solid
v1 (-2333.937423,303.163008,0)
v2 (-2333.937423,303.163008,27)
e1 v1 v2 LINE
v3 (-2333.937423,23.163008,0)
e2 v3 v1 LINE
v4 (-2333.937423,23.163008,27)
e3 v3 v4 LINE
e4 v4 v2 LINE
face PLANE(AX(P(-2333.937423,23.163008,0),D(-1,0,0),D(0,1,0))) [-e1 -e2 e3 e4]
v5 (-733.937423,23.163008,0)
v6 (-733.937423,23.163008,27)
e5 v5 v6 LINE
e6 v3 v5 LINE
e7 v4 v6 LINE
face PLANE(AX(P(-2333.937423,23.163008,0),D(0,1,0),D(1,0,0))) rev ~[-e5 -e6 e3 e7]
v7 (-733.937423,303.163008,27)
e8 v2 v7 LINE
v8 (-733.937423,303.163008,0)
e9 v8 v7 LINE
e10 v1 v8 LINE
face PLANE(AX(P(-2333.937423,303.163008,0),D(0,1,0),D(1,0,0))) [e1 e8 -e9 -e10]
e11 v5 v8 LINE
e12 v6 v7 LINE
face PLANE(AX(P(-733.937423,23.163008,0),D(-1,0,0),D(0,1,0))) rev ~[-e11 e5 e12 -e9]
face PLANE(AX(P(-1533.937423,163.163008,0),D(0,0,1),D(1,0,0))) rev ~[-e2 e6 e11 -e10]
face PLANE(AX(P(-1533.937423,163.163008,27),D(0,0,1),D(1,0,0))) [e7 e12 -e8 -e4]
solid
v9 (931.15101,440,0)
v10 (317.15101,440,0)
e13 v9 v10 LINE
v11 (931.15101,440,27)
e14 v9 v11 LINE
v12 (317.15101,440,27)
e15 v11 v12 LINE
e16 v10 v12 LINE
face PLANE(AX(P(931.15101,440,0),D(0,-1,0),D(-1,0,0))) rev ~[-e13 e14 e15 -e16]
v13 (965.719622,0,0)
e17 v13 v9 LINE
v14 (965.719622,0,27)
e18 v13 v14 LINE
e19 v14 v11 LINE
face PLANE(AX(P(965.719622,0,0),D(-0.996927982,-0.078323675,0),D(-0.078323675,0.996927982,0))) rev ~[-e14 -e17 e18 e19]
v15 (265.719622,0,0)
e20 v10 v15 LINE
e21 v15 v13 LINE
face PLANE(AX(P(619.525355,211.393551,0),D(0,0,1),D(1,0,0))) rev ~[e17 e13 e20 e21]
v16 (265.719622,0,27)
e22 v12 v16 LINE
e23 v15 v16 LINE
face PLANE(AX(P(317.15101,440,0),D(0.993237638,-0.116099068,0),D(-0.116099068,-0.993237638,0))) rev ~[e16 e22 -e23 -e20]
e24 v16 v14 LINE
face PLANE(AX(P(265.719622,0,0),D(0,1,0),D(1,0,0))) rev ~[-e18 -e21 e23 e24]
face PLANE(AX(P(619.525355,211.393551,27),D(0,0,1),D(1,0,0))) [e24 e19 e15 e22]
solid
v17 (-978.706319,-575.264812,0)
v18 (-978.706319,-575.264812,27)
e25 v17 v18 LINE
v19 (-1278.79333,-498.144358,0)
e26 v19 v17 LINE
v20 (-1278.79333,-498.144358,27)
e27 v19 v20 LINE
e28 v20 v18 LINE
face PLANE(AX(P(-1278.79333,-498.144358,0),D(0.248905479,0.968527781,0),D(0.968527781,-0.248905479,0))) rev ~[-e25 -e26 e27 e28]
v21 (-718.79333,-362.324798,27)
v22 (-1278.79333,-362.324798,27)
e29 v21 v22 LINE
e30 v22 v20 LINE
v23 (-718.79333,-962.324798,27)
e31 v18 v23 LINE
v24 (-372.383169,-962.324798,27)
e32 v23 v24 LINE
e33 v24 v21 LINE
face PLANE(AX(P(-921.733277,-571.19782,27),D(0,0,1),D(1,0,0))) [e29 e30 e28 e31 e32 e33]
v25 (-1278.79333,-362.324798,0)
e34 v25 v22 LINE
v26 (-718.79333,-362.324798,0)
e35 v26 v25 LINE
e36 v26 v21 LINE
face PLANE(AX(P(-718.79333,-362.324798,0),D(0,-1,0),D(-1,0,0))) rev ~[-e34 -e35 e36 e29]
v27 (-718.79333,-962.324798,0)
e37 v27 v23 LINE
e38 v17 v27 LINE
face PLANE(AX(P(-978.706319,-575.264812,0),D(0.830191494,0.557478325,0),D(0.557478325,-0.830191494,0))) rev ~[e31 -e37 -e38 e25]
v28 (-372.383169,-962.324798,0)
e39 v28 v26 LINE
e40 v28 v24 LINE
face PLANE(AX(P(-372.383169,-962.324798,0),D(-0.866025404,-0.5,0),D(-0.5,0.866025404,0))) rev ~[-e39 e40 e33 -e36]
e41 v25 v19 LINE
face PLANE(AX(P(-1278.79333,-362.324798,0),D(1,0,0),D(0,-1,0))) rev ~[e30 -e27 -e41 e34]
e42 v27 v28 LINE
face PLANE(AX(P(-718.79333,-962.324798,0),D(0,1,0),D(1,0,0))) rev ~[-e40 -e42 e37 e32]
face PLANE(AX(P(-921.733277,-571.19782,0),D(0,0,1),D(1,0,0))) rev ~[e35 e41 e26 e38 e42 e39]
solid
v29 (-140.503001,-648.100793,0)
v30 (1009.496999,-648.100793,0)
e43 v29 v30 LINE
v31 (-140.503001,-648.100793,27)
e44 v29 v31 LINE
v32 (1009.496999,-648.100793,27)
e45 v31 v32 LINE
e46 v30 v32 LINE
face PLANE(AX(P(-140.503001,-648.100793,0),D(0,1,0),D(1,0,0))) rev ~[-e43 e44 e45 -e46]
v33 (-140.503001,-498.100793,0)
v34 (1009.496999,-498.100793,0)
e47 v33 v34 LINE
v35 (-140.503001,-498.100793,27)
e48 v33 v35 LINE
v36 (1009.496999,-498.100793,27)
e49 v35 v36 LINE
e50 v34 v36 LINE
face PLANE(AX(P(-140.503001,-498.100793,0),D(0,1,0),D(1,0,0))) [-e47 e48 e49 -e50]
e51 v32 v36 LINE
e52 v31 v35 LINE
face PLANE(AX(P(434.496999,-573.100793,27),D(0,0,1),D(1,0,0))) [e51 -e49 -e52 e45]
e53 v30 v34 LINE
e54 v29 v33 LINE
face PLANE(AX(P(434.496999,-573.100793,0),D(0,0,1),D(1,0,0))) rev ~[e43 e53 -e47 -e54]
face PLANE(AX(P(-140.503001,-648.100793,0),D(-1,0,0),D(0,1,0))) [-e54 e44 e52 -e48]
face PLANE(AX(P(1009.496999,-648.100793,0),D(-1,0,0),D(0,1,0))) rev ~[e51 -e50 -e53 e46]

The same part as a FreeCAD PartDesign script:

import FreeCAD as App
import Part
import Sketcher
Q = App.Units.Quantity


def add_polygon(sketch, points):
    """Adds a closed chain of lines whose ends are joined by coincident constraints."""
    first, n = sketch.GeometryCount, len(points)
    for a, b in zip(points, points[1:] + points[:1]):
        sketch.addGeometry(Part.LineSegment(App.Vector(*a, 0), App.Vector(*b, 0)), False)
    for i in range(n):
        sketch.addConstraint(Sketcher.Constraint("Coincident", first + i, 2, first + (i + 1) % n, 1))

doc = App.newDocument("Part")
body = doc.addObject("PartDesign::Body", "Body")

# Sketch on XY plane
sketch1 = doc.addObject("Sketcher::SketchObject", "Sketch")
body.addObject(sketch1)
sketch1.AttachmentSupport = (doc.XY_Plane, [""])
sketch1.MapMode = "FlatFace"
add_polygon(sketch1, [(-2334, 303), (-2334, 23), (-734, 23), (-734, 303)])  # lines 0-3
sketch1.addConstraint(Sketcher.Constraint("Vertical", 0))
sketch1.addConstraint(Sketcher.Constraint("Horizontal", 1))
sketch1.addConstraint(Sketcher.Constraint("Vertical", 2))
sketch1.addConstraint(Sketcher.Constraint("Horizontal", 3))
sketch1.addConstraint(Sketcher.Constraint("DistanceX", 1, 1, 1, 2, 1600.0))
sketch1.addConstraint(Sketcher.Constraint("DistanceY", 0, 2, 0, 1, 280.0))
sketch1.addConstraint(Sketcher.Constraint("DistanceX", 0, 2, -1, 1, 2333.937423))
sketch1.addConstraint(Sketcher.Constraint("DistanceY", -1, 1, 0, 2, 23.163008))
pad1 = doc.addObject("PartDesign::Pad", "Pad")
body.addObject(pad1)
pad1.Profile = sketch1
pad1.Length = 27
body2 = doc.addObject("PartDesign::Body", "Body001")

# Sketch on XY plane
sketch2 = doc.addObject("Sketcher::SketchObject", "Sketch001")
body2.addObject(sketch2)
sketch2.AttachmentSupport = (doc.getObject("XY_Plane001"), [""])
sketch2.MapMode = "FlatFace"
add_polygon(sketch2, [(-141, -498), (-141, -648), (1009, -648), (1009, -498)])  # lines 0-3
sketch2.addConstraint(Sketcher.Constraint("Vertical", 0))
sketch2.addConstraint(Sketcher.Constraint("Horizontal", 1))
sketch2.addConstraint(Sketcher.Constraint("Vertical", 2))
sketch2.addConstraint(Sketcher.Constraint("Horizontal", 3))
sketch2.addConstraint(Sketcher.Constraint("DistanceX", 1, 1, 1, 2, 1150.0))
sketch2.addConstraint(Sketcher.Constraint("DistanceY", 0, 2, 0, 1, 150.0))
sketch2.addConstraint(Sketcher.Constraint("DistanceX", 0, 2, -1, 1, 140.503001))
sketch2.addConstraint(Sketcher.Constraint("DistanceY", 0, 2, -1, 1, 648.100793))
pad2 = doc.addObject("PartDesign::Pad", "Pad001")
body2.addObject(pad2)
pad2.Profile = sketch2
pad2.Length = 27
body3 = doc.addObject("PartDesign::Body", "Body002")

# Sketch on XY plane
sketch3 = doc.addObject("Sketcher::SketchObject", "Sketch002")
body3.addObject(sketch3)
sketch3.AttachmentSupport = (doc.getObject("XY_Plane002"), [""])
sketch3.MapMode = "FlatFace"
add_polygon(sketch3, [(-719, -362), (-1279, -362), (-1279, -498), (-979, -575), (-719, -962), (-372, -962)])  # lines 0-5
sketch3.addConstraint(Sketcher.Constraint("Horizontal", 0))
sketch3.addConstraint(Sketcher.Constraint("Vertical", 1))
sketch3.addConstraint(Sketcher.Constraint("Horizontal", 4))
sketch3.addConstraint(Sketcher.Constraint("Vertical", 3, 2, 5, 2))
sketch3.addConstraint(Sketcher.Constraint("DistanceX", 0, 2, 0, 1, 560.0))
sketch3.addConstraint(Sketcher.Constraint("Angle", 5, Q("120 deg")))
sketch3.addConstraint(Sketcher.Constraint("DistanceY", 3, 2, 0, 2, 600.0))
sketch3.addConstraint(Sketcher.Constraint("DistanceY", 1, 2, 1, 1, 135.81956))
sketch3.addConstraint(Sketcher.Constraint("DistanceY", 0, 2, -1, 1, 362.324798))
sketch3.addConstraint(Sketcher.Constraint("Distance", 2, 309.83831))
sketch3.addConstraint(Sketcher.Constraint("DistanceX", 0, 2, -1, 1, 1278.79333))
sketch3.addConstraint(Sketcher.Constraint("DistanceX", 2, 2, -1, 1, 978.706319))
pad3 = doc.addObject("PartDesign::Pad", "Pad002")
body3.addObject(pad3)
pad3.Profile = sketch3
pad3.Length = 27
body4 = doc.addObject("PartDesign::Body", "Body003")

# Sketch on XY plane
sketch4 = doc.addObject("Sketcher::SketchObject", "Sketch003")
body4.addObject(sketch4)
sketch4.AttachmentSupport = (doc.getObject("XY_Plane003"), [""])
sketch4.MapMode = "FlatFace"
add_polygon(sketch4, [(931, 440), (317, 440), (266, 0), (966, 0)])  # lines 0-3
sketch4.addConstraint(Sketcher.Constraint("Horizontal", 0))
sketch4.addConstraint(Sketcher.Constraint("Horizontal", 2))
sketch4.addConstraint(Sketcher.Constraint("PointOnObject", 1, 2, -1))
sketch4.addConstraint(Sketcher.Constraint("DistanceX", 0, 2, 0, 1, 614.0))
sketch4.addConstraint(Sketcher.Constraint("DistanceX", 2, 1, 2, 2, 700.0))
sketch4.addConstraint(Sketcher.Constraint("DistanceY", -1, 1, 0, 2, 440.0))
sketch4.addConstraint(Sketcher.Constraint("DistanceX", -1, 1, 0, 2, 317.15101))
sketch4.addConstraint(Sketcher.Constraint("Distance", 1, 442.995697))
pad4 = doc.addObject("PartDesign::Pad", "Pad003")
body4.addObject(pad4)
pad4.Profile = sketch4
pad4.Length = 27

doc.recompute()
